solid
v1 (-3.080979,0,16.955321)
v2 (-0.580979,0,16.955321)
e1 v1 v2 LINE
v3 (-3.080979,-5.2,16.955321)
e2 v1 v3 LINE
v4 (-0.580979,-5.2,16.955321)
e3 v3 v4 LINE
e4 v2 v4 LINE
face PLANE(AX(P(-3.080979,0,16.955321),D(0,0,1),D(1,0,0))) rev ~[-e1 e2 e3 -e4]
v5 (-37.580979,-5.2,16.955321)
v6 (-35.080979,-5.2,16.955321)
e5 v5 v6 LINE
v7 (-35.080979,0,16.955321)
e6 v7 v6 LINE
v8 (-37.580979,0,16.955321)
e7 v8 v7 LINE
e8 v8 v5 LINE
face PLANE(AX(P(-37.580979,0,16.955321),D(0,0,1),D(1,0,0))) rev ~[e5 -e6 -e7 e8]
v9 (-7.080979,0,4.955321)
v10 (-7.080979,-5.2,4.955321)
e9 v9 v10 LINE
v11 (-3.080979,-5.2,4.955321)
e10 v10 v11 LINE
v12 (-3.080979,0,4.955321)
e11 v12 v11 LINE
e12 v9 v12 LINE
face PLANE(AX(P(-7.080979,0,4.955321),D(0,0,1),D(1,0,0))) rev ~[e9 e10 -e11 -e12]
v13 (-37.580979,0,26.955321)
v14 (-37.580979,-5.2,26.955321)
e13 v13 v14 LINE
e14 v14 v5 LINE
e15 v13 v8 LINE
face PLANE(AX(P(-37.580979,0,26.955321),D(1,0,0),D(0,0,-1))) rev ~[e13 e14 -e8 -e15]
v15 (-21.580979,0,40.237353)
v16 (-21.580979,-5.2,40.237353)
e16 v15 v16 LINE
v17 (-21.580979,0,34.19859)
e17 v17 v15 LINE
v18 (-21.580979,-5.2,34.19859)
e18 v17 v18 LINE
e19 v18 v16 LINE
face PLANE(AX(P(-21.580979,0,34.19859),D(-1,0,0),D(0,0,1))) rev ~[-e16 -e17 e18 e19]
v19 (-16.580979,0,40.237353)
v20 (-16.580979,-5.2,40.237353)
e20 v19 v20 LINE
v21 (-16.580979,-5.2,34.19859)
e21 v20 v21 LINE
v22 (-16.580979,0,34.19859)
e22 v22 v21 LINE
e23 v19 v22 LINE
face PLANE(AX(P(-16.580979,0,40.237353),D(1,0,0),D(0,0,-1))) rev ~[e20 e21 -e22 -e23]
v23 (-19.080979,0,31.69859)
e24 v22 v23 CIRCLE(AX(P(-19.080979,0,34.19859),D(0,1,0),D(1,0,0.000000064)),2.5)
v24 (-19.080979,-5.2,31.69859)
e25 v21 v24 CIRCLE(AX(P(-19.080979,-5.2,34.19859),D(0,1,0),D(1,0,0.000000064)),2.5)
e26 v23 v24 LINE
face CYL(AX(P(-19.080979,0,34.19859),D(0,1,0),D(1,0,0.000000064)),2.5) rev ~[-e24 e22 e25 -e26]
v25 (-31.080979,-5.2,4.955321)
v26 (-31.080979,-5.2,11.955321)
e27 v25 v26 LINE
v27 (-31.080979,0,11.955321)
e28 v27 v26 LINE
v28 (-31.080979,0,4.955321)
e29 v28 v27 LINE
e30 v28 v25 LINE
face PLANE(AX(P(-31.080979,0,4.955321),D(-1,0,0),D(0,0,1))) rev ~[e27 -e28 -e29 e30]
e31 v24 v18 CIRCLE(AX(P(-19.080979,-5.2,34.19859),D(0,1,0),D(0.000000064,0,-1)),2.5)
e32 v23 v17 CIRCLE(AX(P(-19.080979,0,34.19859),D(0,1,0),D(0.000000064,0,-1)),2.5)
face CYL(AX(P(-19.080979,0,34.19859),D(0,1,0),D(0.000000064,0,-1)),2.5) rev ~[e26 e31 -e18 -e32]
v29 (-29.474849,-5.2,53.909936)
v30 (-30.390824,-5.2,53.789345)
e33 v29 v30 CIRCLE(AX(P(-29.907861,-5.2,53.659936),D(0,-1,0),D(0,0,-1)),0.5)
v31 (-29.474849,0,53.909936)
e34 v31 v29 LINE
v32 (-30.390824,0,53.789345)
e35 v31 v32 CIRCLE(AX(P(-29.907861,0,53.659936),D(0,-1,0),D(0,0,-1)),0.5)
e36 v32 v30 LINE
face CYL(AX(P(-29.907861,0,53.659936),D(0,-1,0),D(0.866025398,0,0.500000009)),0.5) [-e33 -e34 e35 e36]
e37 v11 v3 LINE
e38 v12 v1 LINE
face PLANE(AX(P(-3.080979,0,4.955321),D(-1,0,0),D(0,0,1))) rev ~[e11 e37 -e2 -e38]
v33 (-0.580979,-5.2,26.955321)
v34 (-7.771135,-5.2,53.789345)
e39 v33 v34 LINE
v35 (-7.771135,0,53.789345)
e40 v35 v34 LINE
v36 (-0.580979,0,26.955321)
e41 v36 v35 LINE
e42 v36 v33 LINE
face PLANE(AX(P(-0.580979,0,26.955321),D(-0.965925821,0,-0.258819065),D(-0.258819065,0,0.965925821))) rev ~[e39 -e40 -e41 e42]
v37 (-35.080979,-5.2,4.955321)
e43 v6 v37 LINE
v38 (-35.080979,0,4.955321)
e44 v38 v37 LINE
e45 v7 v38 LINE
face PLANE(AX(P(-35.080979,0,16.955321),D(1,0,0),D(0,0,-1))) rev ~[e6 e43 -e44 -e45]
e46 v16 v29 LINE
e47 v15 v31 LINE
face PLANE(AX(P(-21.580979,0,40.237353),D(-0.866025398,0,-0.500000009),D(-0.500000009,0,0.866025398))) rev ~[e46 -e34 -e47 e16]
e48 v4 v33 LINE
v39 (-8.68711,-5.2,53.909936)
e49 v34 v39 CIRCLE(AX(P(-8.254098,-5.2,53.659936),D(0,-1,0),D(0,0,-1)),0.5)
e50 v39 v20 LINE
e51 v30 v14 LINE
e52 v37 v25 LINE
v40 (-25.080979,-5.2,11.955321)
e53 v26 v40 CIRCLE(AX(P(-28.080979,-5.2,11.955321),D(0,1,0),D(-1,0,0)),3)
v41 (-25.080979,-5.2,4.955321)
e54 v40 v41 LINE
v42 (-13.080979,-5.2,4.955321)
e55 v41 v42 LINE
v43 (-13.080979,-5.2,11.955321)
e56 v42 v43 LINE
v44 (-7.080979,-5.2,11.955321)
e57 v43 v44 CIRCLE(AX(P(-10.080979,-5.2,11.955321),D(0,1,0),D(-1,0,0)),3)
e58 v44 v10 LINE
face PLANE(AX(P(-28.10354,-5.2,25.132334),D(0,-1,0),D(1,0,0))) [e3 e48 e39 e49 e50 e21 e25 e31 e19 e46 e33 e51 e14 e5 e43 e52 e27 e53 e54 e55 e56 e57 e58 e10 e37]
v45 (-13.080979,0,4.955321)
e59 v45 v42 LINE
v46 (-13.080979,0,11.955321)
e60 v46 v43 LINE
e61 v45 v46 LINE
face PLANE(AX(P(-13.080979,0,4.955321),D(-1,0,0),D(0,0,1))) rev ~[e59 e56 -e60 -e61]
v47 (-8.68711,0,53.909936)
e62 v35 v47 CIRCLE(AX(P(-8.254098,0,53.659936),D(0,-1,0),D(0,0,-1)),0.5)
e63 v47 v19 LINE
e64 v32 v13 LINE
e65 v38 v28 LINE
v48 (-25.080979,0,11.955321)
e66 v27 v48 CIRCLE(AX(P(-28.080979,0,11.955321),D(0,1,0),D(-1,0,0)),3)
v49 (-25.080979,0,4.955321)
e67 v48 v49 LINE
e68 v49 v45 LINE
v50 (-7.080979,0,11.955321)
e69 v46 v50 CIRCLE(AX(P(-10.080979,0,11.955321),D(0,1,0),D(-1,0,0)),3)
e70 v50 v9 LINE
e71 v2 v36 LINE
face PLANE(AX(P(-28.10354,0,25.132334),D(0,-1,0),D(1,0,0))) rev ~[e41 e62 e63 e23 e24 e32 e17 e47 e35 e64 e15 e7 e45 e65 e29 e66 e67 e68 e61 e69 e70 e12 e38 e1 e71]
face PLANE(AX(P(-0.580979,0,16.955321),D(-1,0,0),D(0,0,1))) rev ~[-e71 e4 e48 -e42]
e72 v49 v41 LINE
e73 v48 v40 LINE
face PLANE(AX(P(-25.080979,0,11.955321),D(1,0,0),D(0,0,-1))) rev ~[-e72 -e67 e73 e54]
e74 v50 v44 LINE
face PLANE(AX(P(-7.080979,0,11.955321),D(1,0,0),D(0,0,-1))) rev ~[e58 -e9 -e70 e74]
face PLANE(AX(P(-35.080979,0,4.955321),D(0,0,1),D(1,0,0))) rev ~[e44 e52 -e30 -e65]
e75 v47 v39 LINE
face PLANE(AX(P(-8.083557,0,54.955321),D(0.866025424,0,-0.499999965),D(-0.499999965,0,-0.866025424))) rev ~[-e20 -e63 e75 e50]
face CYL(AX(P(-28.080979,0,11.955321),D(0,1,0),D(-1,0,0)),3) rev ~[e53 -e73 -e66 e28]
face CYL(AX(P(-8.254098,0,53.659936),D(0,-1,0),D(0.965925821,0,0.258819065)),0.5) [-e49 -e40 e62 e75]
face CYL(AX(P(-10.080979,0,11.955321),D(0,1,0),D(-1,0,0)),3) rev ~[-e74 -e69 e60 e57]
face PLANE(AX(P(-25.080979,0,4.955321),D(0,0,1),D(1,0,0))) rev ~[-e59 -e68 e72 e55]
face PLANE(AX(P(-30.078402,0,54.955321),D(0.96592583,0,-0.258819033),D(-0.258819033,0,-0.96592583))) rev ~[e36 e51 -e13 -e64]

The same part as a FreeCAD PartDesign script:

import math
import FreeCAD as App
import Part
import Sketcher
from FreeCAD import Vector
Q = App.Units.Quantity


def edges_at(feature, points):
    """Names of the edges that pass closest to the given points."""
    edges = feature.Shape.Edges
    near = lambda p: min(range(len(edges)), key=lambda i: edges[i].distToShape(Part.Vertex(*p))[0])
    return sorted({f"Edge{near(p) + 1}" for p in points})

doc = App.newDocument("Part")
body = doc.addObject("PartDesign::Body", "Body")

# Sketch on XZ plane
sketch1 = body.newObject("Sketcher::SketchObject", "Sketch")
sketch1.AttachmentSupport = (doc.getObject("XZ_Plane"), [""])
sketch1.MapMode = "FlatFace"
sketch1.addGeometry([
    Part.LineSegment(Vector(-35.1, 17, 0), Vector(-35.1, 5, 0)),  # 0
    Part.LineSegment(Vector(-35.1, 5, 0), Vector(-31.1, 5, 0)),  # 1
    Part.LineSegment(Vector(-31.1, 5, 0), Vector(-31.1, 12, 0)),  # 2
    Part.ArcOfCircle(Part.Circle(Vector(-28.1, 12, 0), Vector(0, 0, 1), 3), math.radians(0), math.radians(180)),  # 3
    Part.LineSegment(Vector(-25.1, 12, 0), Vector(-25.1, 5, 0)),  # 4
    Part.LineSegment(Vector(-25.1, 5, 0), Vector(-13.1, 5, 0)),  # 5
    Part.LineSegment(Vector(-13.1, 5, 0), Vector(-13.1, 12, 0)),  # 6
    Part.ArcOfCircle(Part.Circle(Vector(-10.1, 12, 0), Vector(0, 0, 1), 3), math.radians(0), math.radians(180)),  # 7
    Part.LineSegment(Vector(-7.1, 12, 0), Vector(-7.1, 5, 0)),  # 8
    Part.LineSegment(Vector(-7.1, 5, 0), Vector(-3.1, 5, 0)),  # 9
    Part.LineSegment(Vector(-3.1, 5, 0), Vector(-3.1, 17, 0)),  # 10
    Part.LineSegment(Vector(-3.1, 17, 0), Vector(-0.6, 17, 0)),  # 11
    Part.LineSegment(Vector(-0.6, 17, 0), Vector(-0.6, 27, 0)),  # 12
    Part.LineSegment(Vector(-0.6, 27, 0), Vector(-8.1, 55, 0)),  # 13
    Part.LineSegment(Vector(-8.1, 55, 0), Vector(-16.6, 40.2, 0)),  # 14
    Part.LineSegment(Vector(-16.6, 40.2, 0), Vector(-16.6, 34.2, 0)),  # 15
    Part.ArcOfCircle(Part.Circle(Vector(-19.1, 34.2, 0), Vector(0, 0, 1), 2.5), math.radians(-90), math.radians(0)),  # 16
    Part.ArcOfCircle(Part.Circle(Vector(-19.1, 34.2, 0), Vector(0, 0, 1), 2.5), math.radians(180), math.radians(270)),  # 17
    Part.LineSegment(Vector(-21.6, 34.2, 0), Vector(-21.6, 40.2, 0)),  # 18
    Part.LineSegment(Vector(-21.6, 40.2, 0), Vector(-30.1, 55, 0)),  # 19
    Part.LineSegment(Vector(-30.1, 55, 0), Vector(-37.6, 27, 0)),  # 20
    Part.LineSegment(Vector(-37.6, 27, 0), Vector(-37.6, 17, 0)),  # 21
    Part.LineSegment(Vector(-37.6, 17, 0), Vector(-35.1, 17, 0)),  # 22
], False)
sketch1.addConstraint([
    Sketcher.Constraint("Coincident", 0, 2, 1, 1),
    Sketcher.Constraint("Coincident", 1, 2, 2, 1),
    Sketcher.Constraint("Tangent", 2, 2, 3, 2),
    Sketcher.Constraint("Tangent", 3, 1, 4, 1),
    Sketcher.Constraint("Coincident", 4, 2, 5, 1),
    Sketcher.Constraint("Coincident", 5, 2, 6, 1),
    Sketcher.Constraint("Tangent", 6, 2, 7, 2),
    Sketcher.Constraint("Tangent", 7, 1, 8, 1),
    Sketcher.Constraint("Coincident", 8, 2, 9, 1),
    Sketcher.Constraint("Coincident", 9, 2, 10, 1),
    Sketcher.Constraint("Coincident", 10, 2, 11, 1),
    Sketcher.Constraint("Coincident", 11, 2, 12, 1),
    Sketcher.Constraint("Coincident", 12, 2, 13, 1),
    Sketcher.Constraint("Coincident", 13, 2, 14, 1),
    Sketcher.Constraint("Coincident", 14, 2, 15, 1),
    Sketcher.Constraint("Tangent", 15, 2, 16, 2),
    Sketcher.Constraint("Tangent", 16, 1, 17, 2),
    Sketcher.Constraint("Tangent", 17, 1, 18, 1),
    Sketcher.Constraint("Coincident", 18, 2, 19, 1),
    Sketcher.Constraint("Coincident", 19, 2, 20, 1),
    Sketcher.Constraint("Coincident", 20, 2, 21, 1),
    Sketcher.Constraint("Coincident", 21, 2, 22, 1),
    Sketcher.Constraint("Coincident", 22, 2, 0, 1),
    Sketcher.Constraint("Vertical", 0),
    Sketcher.Constraint("Horizontal", 1),
    Sketcher.Constraint("Vertical", 2),
    Sketcher.Constraint("Vertical", 4),
    Sketcher.Constraint("Horizontal", 5),
    Sketcher.Constraint("Vertical", 6),
    Sketcher.Constraint("Vertical", 8),
    Sketcher.Constraint("Horizontal", 9),
    Sketcher.Constraint("Vertical", 10),
    Sketcher.Constraint("Horizontal", 11),
    Sketcher.Constraint("Vertical", 12),
    Sketcher.Constraint("Vertical", 15),
    Sketcher.Constraint("Vertical", 18),
    Sketcher.Constraint("Vertical", 21),
    Sketcher.Constraint("Horizontal", 22),
    Sketcher.Constraint("Equal", 3, 7),
    Sketcher.Constraint("Equal", 16, 17),
    Sketcher.Constraint("Horizontal", 3, 3, 7, 3),
    Sketcher.Constraint("Horizontal", 1, 2, 4, 2),
    Sketcher.Constraint("Horizontal", 5, 2, 8, 2),
    Sketcher.Constraint("Horizontal", 14, 2, 18, 2),
    Sketcher.Constraint("Horizontal", 13, 2, 19, 2),
    Sketcher.Constraint("Horizontal", 12, 2, 20, 2),
    Sketcher.Constraint("Horizontal", 11, 2, 21, 2),
    Sketcher.Constraint("Vertical", 17, 3, 16, 1),
    Sketcher.Constraint("Equal", 1, 9),
    Sketcher.Constraint("Equal", 11, 22),
    Sketcher.Constraint("Equal", 5, 0),
    Sketcher.Constraint("Equal", 14, 19),
    Sketcher.Constraint("Equal", 13, 20),
    Sketcher.Constraint("Radius", 3, 3.0),
    Sketcher.Constraint("Radius", 16, 2.5),
    Sketcher.Constraint("DistanceX", 1, 1, 1, 2, 4.0),
    Sketcher.Constraint("DistanceX", 5, 1, 5, 2, 12.0),
    Sketcher.Constraint("DistanceY", 2, 1, 2, 2, 7.0),
    Sketcher.Constraint("DistanceY", 12, 1, 12, 2, 10.0),
    Sketcher.Constraint("Angle", 13, Q("105.000001 deg")),
    Sketcher.Constraint("Angle", 14, Q("-119.999998 deg")),
    Sketcher.Constraint("DistanceX", 11, 1, 11, 2, 2.5),
    Sketcher.Constraint("DistanceY", 12, 2, 13, 2, 28.0),
    Sketcher.Constraint("DistanceY", 15, 2, 15, 1, 6.038763),
    Sketcher.Constraint("DistanceX", 3, 3, -1, 1, 28.080979),
    Sketcher.Constraint("DistanceY", -1, 1, 3, 3, 11.955321),
])
pad1 = body.newObject("PartDesign::Pad", "Pad")
pad1.Profile = sketch1
pad1.Length = 5.2
doc.recompute()

fillet = body.newObject("PartDesign::Fillet", "Fillet")
fillet.Base = (pad1, edges_at(pad1, [(-30.078, -2.6, 54.955), (-8.084, -2.6, 54.955)]))
fillet.Radius = 0.5

doc.recompute()
